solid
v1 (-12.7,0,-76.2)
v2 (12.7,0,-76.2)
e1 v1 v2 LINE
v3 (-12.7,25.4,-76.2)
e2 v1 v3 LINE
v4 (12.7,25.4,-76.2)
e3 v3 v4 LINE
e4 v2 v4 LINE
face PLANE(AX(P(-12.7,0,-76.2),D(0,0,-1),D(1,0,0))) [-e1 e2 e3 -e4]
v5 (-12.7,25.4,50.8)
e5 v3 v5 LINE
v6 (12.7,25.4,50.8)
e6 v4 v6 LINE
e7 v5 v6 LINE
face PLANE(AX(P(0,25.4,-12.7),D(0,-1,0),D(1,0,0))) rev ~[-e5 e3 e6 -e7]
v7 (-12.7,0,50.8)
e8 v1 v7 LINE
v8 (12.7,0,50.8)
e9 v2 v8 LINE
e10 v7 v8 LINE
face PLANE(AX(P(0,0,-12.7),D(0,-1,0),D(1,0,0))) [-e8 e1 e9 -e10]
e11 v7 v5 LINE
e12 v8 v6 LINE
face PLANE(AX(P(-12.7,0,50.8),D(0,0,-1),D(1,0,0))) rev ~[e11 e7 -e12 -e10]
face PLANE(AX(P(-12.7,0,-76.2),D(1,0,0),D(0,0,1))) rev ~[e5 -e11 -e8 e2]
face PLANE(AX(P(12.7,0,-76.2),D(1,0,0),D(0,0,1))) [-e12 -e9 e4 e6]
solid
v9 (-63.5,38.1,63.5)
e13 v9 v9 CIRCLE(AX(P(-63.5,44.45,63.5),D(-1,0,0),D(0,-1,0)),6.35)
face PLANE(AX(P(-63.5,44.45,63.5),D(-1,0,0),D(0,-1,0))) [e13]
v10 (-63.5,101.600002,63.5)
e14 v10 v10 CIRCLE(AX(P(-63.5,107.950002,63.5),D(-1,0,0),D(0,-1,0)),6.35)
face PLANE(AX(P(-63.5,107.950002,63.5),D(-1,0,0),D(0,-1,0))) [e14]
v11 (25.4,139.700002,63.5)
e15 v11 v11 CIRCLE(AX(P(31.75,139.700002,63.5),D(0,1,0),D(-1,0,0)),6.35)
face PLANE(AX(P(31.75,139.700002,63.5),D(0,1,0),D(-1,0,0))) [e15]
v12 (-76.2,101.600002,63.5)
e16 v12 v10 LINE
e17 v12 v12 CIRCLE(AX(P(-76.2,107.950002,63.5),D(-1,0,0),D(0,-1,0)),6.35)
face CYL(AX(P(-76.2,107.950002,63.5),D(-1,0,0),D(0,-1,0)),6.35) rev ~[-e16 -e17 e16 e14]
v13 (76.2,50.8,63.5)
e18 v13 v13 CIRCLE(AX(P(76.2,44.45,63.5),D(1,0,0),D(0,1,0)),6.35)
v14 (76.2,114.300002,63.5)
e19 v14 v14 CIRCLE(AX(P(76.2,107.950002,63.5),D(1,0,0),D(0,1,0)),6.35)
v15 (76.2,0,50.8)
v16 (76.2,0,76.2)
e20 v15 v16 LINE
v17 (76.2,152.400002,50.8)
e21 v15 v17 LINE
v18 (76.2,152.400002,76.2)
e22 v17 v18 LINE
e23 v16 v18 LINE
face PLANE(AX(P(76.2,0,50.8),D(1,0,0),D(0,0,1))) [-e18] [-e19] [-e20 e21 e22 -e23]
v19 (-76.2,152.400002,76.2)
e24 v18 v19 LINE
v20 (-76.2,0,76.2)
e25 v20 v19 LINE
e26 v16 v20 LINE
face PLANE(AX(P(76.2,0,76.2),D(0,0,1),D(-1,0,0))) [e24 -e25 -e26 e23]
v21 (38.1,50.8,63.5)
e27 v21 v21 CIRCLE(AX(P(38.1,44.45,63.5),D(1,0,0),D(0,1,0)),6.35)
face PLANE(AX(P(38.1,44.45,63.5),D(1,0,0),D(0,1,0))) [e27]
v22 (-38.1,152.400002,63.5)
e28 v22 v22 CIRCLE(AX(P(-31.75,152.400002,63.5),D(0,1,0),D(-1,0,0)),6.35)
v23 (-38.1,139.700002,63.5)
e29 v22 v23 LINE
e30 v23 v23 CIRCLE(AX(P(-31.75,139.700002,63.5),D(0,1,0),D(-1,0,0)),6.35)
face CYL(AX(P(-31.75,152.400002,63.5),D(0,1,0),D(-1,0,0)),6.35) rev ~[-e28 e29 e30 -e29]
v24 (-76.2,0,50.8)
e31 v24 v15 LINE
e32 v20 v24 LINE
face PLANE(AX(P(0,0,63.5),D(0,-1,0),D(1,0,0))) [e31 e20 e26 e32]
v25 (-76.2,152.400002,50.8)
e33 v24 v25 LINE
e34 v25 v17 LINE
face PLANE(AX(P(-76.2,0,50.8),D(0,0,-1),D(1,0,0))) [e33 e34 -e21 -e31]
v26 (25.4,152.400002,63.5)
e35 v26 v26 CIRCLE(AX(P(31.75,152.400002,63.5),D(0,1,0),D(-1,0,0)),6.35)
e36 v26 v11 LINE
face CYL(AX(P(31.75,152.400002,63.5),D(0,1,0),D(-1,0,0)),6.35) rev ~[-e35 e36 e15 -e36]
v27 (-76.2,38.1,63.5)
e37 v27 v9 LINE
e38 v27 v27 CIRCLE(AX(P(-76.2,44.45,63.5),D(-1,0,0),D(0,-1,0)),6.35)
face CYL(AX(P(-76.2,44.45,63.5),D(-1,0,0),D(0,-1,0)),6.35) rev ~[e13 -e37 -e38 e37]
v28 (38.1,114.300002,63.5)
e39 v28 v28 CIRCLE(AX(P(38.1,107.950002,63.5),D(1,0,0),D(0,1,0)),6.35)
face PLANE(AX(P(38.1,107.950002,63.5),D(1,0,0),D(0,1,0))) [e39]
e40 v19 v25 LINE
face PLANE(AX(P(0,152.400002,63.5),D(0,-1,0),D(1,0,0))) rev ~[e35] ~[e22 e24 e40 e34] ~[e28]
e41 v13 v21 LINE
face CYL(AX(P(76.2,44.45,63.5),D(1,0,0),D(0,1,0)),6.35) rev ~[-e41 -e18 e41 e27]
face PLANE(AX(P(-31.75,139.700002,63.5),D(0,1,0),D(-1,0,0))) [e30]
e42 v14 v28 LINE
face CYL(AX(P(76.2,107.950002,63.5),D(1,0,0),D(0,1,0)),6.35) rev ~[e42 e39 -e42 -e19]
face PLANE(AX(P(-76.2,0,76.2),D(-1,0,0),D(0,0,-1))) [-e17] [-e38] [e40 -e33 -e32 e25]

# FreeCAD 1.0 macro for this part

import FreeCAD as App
import Part
import Sketcher

V = App.Vector
Q = App.Units.Quantity

doc = App.newDocument("Part")
body = doc.addObject("PartDesign::Body", "Body")

sketch1 = doc.addObject("Sketcher::SketchObject", "Sketch")
body.addObject(sketch1)
sketch1.AttachmentSupport = (doc.XZ_Plane, [""])
sketch1.MapMode = "FlatFace"
sketch1.addGeometry(Part.LineSegment(V(-76, 76, 0), V(-76, 51, 0)), False)
sketch1.addGeometry(Part.LineSegment(V(-76, 51, 0), V(76, 51, 0)), False)
sketch1.addGeometry(Part.LineSegment(V(76, 51, 0), V(76, 76, 0)), False)
sketch1.addGeometry(Part.LineSegment(V(76, 76, 0), V(-76, 76, 0)), False)
sketch1.addConstraint(Sketcher.Constraint("Coincident", 0, 2, 1, 1))
sketch1.addConstraint(Sketcher.Constraint("Coincident", 1, 2, 2, 1))
sketch1.addConstraint(Sketcher.Constraint("Coincident", 2, 2, 3, 1))
sketch1.addConstraint(Sketcher.Constraint("Coincident", 3, 2, 0, 1))
sketch1.addConstraint(Sketcher.Constraint("Vertical", 0))
sketch1.addConstraint(Sketcher.Constraint("Horizontal", 1))
sketch1.addConstraint(Sketcher.Constraint("Vertical", 2))
sketch1.addConstraint(Sketcher.Constraint("Horizontal", 3))
sketch1.addConstraint(Sketcher.Constraint("DistanceX", 1, 1, 1, 2, Q("6 in")))
sketch1.addConstraint(Sketcher.Constraint("DistanceY", 0, 2, 0, 1, Q("1 in")))
sketch1.addConstraint(Sketcher.Constraint("DistanceX", 0, 2, -1, 1, Q("3 in")))
sketch1.addConstraint(Sketcher.Constraint("DistanceY", -1, 1, 0, 2, Q("2 in")))
pad1 = doc.addObject("PartDesign::Pad", "Pad")
body.addObject(pad1)
pad1.Profile = sketch1
pad1.Length = Q("6.0000001 in")
pad1.Reversed = True

sketch2 = doc.addObject("Sketcher::SketchObject", "Sketch001")
body.addObject(sketch2)
sketch2.AttachmentSupport = (doc.YZ_Plane, [""])
sketch2.MapMode = "FlatFace"
sketch2.AttachmentOffset = App.Placement(V(0, 0, -3 * 25.4), App.Rotation())
sketch2.addGeometry(Part.Circle(V(108, 64, 0), V(0, 0, 1), 6), False)
sketch2.addGeometry(Part.Circle(V(44, 64, 0), V(0, 0, 1), 6), False)
sketch2.addConstraint(Sketcher.Constraint("Equal", 0, 1))
sketch2.addConstraint(Sketcher.Constraint("Horizontal", 0, 3, 1, 3))
sketch2.addConstraint(Sketcher.Constraint("Diameter", 0, Q("0.5 in")))
sketch2.addConstraint(Sketcher.Constraint("DistanceY", -1, 1, 0, 3, Q("2.5 in")))
sketch2.addConstraint(Sketcher.Constraint("DistanceX", 1, 3, 0, 3, Q("2.5000001 in")))
sketch2.addConstraint(Sketcher.Constraint("DistanceX", -1, 1, 0, 3, Q("4.2500001 in")))
pocket1 = doc.addObject("PartDesign::Pocket", "Pocket")
body.addObject(pocket1)
pocket1.Profile = sketch2
pocket1.Length = Q("0.5 in")
pocket1.Reversed = True

sketch3 = doc.addObject("Sketcher::SketchObject", "Sketch002")
body.addObject(sketch3)
sketch3.AttachmentSupport = (doc.XZ_Plane, [""])
sketch3.MapMode = "FlatFace"
sketch3.AttachmentOffset = App.Placement(V(0, 0, -6.0000001 * 25.4), App.Rotation())
sketch3.addGeometry(Part.Circle(V(32, 64, 0), V(0, 0, 1), 6), False)
sketch3.addGeometry(Part.Circle(V(-32, 64, 0), V(0, 0, 1), 6), False)
sketch3.addConstraint(Sketcher.Constraint("Equal", 0, 1))
sketch3.addConstraint(Sketcher.Constraint("Symmetric", 0, 3, 1, 3, -2))
sketch3.addConstraint(Sketcher.Constraint("Diameter", 0, Q("0.5 in")))
sketch3.addConstraint(Sketcher.Constraint("DistanceY", -1, 1, 0, 3, Q("2.5 in")))
sketch3.addConstraint(Sketcher.Constraint("DistanceX", 1, 3, 0, 3, Q("2.5 in")))
pocket2 = doc.addObject("PartDesign::Pocket", "Pocket001")
body.addObject(pocket2)
pocket2.Profile = sketch3
pocket2.Length = Q("0.5 in")
pocket2.Reversed = True

sketch4 = doc.addObject("Sketcher::SketchObject", "Sketch003")
body.addObject(sketch4)
sketch4.AttachmentSupport = (doc.YZ_Plane, [""])
sketch4.MapMode = "FlatFace"
sketch4.AttachmentOffset = App.Placement(V(0, 0, 3 * 25.4), App.Rotation())
sketch4.addGeometry(Part.Circle(V(44, 64, 0), V(0, 0, 1), 6), False)
sketch4.addGeometry(Part.Circle(V(108, 64, 0), V(0, 0, 1), 6), False)
sketch4.addConstraint(Sketcher.Constraint("Equal", 0, 1))
sketch4.addConstraint(Sketcher.Constraint("Horizontal", 0, 3, 1, 3))
sketch4.addConstraint(Sketcher.Constraint("Diameter", 0, Q("0.5 in")))
sketch4.addConstraint(Sketcher.Constraint("DistanceY", -1, 1, 0, 3, Q("2.5 in")))
sketch4.addConstraint(Sketcher.Constraint("DistanceX", 0, 3, 1, 3, Q("2.5000001 in")))
sketch4.addConstraint(Sketcher.Constraint("DistanceX", -1, 1, 0, 3, Q("1.75 in")))
pocket3 = doc.addObject("PartDesign::Pocket", "Pocket002")
body.addObject(pocket3)
pocket3.Profile = sketch4
pocket3.Length = Q("1.5 in")
body2 = doc.addObject("PartDesign::Body", "Body001")

sketch5 = doc.addObject("Sketcher::SketchObject", "Sketch004")
body2.addObject(sketch5)
sketch5.AttachmentSupport = (doc.getObject("XZ_Plane001"), [""])
sketch5.MapMode = "FlatFace"
sketch5.addGeometry(Part.LineSegment(V(-13, 51, 0), V(-13, -76, 0)), False)
sketch5.addGeometry(Part.LineSegment(V(-13, -76, 0), V(13, -76, 0)), False)
sketch5.addGeometry(Part.LineSegment(V(13, -76, 0), V(13, 51, 0)), False)
sketch5.addGeometry(Part.LineSegment(V(13, 51, 0), V(-13, 51, 0)), False)
sketch5.addConstraint(Sketcher.Constraint("Coincident", 0, 2, 1, 1))
sketch5.addConstraint(Sketcher.Constraint("Coincident", 1, 2, 2, 1))
sketch5.addConstraint(Sketcher.Constraint("Coincident", 2, 2, 3, 1))
sketch5.addConstraint(Sketcher.Constraint("Coincident", 3, 2, 0, 1))
sketch5.addConstraint(Sketcher.Constraint("Vertical", 0))
sketch5.addConstraint(Sketcher.Constraint("Horizontal", 1))
sketch5.addConstraint(Sketcher.Constraint("Vertical", 2))
sketch5.addConstraint(Sketcher.Constraint("Horizontal", 3))
sketch5.addConstraint(Sketcher.Constraint("DistanceX", 1, 1, 1, 2, Q("1 in")))
sketch5.addConstraint(Sketcher.Constraint("DistanceY", 0, 2, 0, 1, Q("5 in")))
sketch5.addConstraint(Sketcher.Constraint("DistanceY", 0, 2, -1, 1, Q("3 in")))
sketch5.addConstraint(Sketcher.Constraint("DistanceX", 0, 2, -1, 1, Q("0.5 in")))
pad2 = doc.addObject("PartDesign::Pad", "Pad001")
body2.addObject(pad2)
pad2.Profile = sketch5
pad2.Length = Q("1 in")
pad2.Reversed = True

doc.recompute()
